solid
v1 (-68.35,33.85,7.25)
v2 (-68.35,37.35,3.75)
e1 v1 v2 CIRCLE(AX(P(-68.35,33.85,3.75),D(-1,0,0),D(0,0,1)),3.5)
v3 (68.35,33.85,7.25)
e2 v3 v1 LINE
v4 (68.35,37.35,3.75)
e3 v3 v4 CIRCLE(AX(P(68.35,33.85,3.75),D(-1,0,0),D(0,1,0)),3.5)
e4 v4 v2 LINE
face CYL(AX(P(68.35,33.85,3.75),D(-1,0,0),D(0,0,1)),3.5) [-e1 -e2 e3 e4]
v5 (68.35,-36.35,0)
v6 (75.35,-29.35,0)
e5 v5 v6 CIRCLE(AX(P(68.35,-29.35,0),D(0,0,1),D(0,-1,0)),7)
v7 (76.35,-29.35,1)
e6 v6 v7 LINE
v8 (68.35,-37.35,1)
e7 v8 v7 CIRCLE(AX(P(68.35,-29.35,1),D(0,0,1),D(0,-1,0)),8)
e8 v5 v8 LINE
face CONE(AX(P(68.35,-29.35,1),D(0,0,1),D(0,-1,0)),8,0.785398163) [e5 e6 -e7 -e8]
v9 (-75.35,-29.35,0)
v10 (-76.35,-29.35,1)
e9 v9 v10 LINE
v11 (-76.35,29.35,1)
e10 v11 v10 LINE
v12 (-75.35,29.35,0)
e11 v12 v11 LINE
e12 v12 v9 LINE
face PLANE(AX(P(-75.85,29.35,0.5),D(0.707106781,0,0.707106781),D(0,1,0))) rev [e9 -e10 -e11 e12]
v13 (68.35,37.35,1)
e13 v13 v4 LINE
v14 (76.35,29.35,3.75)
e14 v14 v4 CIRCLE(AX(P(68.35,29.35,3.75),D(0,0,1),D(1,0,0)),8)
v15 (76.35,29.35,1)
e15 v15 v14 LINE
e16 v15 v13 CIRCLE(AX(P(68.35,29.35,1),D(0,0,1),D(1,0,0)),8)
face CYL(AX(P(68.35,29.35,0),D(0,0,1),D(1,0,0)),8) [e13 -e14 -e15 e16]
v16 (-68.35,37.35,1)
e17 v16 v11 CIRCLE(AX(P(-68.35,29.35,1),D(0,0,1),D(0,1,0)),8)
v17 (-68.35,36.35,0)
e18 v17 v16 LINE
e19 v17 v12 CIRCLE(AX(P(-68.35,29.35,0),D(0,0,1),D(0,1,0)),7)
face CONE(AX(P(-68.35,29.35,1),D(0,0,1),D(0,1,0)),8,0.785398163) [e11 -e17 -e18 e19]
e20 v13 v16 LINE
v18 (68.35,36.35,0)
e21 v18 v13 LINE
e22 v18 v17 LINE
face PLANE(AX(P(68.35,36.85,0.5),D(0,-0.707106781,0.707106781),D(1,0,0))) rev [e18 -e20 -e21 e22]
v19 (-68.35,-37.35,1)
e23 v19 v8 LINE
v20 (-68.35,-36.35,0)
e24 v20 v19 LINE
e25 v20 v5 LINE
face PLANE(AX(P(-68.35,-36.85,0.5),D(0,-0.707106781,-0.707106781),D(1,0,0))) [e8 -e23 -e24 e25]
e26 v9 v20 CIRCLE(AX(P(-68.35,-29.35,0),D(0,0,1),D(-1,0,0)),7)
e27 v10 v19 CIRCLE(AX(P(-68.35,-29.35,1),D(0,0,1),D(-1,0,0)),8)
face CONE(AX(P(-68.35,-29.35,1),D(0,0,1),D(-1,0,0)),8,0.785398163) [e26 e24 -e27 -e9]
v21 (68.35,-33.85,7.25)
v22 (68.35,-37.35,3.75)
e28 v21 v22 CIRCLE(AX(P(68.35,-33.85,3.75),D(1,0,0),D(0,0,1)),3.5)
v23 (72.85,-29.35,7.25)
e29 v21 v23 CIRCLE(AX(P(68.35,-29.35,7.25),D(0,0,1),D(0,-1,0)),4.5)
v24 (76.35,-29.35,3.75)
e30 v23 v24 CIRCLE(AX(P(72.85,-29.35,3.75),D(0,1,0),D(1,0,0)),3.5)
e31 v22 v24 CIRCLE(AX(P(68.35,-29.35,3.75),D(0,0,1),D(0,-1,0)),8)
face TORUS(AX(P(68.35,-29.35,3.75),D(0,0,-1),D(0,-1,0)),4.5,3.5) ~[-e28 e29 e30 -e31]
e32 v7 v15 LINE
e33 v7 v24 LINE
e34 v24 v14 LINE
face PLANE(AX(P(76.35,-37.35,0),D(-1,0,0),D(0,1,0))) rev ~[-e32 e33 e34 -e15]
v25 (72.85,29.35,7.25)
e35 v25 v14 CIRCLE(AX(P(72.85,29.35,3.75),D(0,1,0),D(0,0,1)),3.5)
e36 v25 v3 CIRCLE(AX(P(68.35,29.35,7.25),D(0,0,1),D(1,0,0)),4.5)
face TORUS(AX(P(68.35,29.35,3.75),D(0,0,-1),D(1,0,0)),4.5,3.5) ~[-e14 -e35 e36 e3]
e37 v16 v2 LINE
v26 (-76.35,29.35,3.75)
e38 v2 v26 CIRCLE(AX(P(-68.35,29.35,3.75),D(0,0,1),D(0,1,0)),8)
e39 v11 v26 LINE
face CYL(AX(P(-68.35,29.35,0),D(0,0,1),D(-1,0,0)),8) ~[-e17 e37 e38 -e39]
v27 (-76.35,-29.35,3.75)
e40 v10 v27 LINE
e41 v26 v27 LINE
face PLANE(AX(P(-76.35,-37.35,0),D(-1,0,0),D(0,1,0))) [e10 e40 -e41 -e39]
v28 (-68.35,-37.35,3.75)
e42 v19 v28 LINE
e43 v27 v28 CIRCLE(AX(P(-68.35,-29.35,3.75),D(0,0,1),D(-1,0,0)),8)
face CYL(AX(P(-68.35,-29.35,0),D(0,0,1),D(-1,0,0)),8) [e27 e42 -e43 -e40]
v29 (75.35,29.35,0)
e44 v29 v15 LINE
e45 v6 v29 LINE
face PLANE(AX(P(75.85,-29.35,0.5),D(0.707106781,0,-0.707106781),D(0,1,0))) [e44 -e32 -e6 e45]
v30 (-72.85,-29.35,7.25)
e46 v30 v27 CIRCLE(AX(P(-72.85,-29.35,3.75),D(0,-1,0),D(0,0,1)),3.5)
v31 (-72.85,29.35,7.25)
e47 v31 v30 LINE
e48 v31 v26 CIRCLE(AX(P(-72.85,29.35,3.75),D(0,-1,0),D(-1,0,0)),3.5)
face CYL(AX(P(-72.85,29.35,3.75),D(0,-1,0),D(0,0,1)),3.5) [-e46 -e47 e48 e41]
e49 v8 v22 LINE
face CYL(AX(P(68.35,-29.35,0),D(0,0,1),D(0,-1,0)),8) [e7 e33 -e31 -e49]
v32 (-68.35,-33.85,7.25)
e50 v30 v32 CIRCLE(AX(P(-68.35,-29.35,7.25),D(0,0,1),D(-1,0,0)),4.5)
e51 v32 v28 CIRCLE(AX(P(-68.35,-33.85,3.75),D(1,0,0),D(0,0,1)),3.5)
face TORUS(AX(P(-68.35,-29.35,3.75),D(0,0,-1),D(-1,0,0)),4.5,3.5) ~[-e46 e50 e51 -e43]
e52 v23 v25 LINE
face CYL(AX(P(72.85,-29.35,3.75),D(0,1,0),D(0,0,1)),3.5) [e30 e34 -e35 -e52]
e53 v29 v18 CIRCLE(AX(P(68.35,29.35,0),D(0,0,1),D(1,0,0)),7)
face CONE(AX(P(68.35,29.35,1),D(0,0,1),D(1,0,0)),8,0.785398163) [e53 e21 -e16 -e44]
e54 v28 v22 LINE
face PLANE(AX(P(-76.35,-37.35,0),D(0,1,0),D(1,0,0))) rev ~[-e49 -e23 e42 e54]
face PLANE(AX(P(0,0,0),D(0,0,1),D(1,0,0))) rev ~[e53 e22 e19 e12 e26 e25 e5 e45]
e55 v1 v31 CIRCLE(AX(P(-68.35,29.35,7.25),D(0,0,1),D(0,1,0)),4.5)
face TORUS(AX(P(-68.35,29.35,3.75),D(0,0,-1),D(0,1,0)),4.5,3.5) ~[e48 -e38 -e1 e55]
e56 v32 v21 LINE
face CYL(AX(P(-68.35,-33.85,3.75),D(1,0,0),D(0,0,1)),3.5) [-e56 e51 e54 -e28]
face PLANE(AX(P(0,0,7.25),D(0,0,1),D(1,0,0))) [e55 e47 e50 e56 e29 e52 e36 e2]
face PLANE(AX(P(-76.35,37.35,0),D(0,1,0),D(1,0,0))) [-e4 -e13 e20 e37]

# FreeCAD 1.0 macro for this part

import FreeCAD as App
import Part
import Sketcher

V = App.Vector
Q = App.Units.Quantity


def edges_at(feature, points):
    """Names of the edges that pass closest to the given points."""
    edges = feature.Shape.Edges
    near = lambda p: min(range(len(edges)), key=lambda i: edges[i].distToShape(Part.Vertex(*p))[0])
    return sorted({f"Edge{near(p) + 1}" for p in points})

doc = App.newDocument("Part")
params = doc.addObject("Spreadsheet::Sheet", "Params")
for row, (alias, value) in enumerate([
    ("sketch1_width", "152.7 mm"),
    ("sketch1_height", "74.7 mm"),
    ("pad1_length", "7.25 mm"),
    ("fillet_radius", "8 mm"),
    ("chamfer_size", "1 mm"),
    ("fillet2_radius", "3.5 mm"),
], start=1):
    params.set(f"A{row}", alias)
    params.set(f"B{row}", "=" + value)
    params.setAlias(f"B{row}", alias)

body = doc.addObject("PartDesign::Body", "Body")

sketch1 = doc.addObject("Sketcher::SketchObject", "Sketch")
body.addObject(sketch1)
sketch1.AttachmentSupport = (doc.XY_Plane, [""])
sketch1.MapMode = "FlatFace"
sketch1.addGeometry(Part.LineSegment(V(-76.35, 37.35, 0), V(-76.35, -37.35, 0)), False)
sketch1.addGeometry(Part.LineSegment(V(-76.35, -37.35, 0), V(76.35, -37.35, 0)), False)
sketch1.addGeometry(Part.LineSegment(V(76.35, -37.35, 0), V(76.35, 37.35, 0)), False)
sketch1.addGeometry(Part.LineSegment(V(76.35, 37.35, 0), V(-76.35, 37.35, 0)), False)
sketch1.addConstraint(Sketcher.Constraint("Coincident", 0, 2, 1, 1))
sketch1.addConstraint(Sketcher.Constraint("Coincident", 1, 2, 2, 1))
sketch1.addConstraint(Sketcher.Constraint("Coincident", 2, 2, 3, 1))
sketch1.addConstraint(Sketcher.Constraint("Coincident", 3, 2, 0, 1))
sketch1.addConstraint(Sketcher.Constraint("Vertical", 0))
sketch1.addConstraint(Sketcher.Constraint("Horizontal", 1))
sketch1.addConstraint(Sketcher.Constraint("Vertical", 2))
sketch1.addConstraint(Sketcher.Constraint("Horizontal", 3))
sketch1.addConstraint(Sketcher.Constraint("Symmetric", 0, 2, 2, 2, -1, 1))
sketch1.addConstraint(Sketcher.Constraint("DistanceX", 1, 1, 1, 2, Q("152.7 mm")))
sketch1.addConstraint(Sketcher.Constraint("DistanceY", 0, 2, 0, 1, Q("74.7 mm")))
sketch1.setExpression("Constraints[9]", "Params.sketch1_width")
sketch1.setExpression("Constraints[10]", "Params.sketch1_height")
pad1 = doc.addObject("PartDesign::Pad", "Pad")
body.addObject(pad1)
pad1.Profile = sketch1
pad1.setExpression("Length", "Params.pad1_length")
doc.recompute()

fillet = doc.addObject("PartDesign::Fillet", "Fillet")
body.addObject(fillet)
fillet.Base = (pad1, edges_at(pad1, [
    (-76.35, -37.35, 3.625),
    (76.35, -37.35, 3.625),
    (76.35, 37.35, 3.625),
    (-76.35, 37.35, 3.625),
]))
fillet.setExpression("Radius", "Params.fillet_radius")
doc.recompute()

chamfer = doc.addObject("PartDesign::Chamfer", "Chamfer")
body.addObject(chamfer)
chamfer.Base = (fillet, edges_at(fillet, [
    (0, -37.35, 0),
    (74.007, -35.007, 0),
    (76.35, 0, 0),
    (74.007, 35.007, 0),
    (-74.007, -35.007, 0),
    (-76.35, 0, 0),
    (-74.007, 35.007, 0),
    (0, 37.35, 0),
]))
chamfer.setExpression("Size", "Params.chamfer_size")
doc.recompute()

fillet2 = doc.addObject("PartDesign::Fillet", "Fillet001")
body.addObject(fillet2)
fillet2.Base = (chamfer, edges_at(chamfer, [(0, -37.35, 7.25)]))
fillet2.setExpression("Radius", "Params.fillet2_radius")

doc.recompute()
